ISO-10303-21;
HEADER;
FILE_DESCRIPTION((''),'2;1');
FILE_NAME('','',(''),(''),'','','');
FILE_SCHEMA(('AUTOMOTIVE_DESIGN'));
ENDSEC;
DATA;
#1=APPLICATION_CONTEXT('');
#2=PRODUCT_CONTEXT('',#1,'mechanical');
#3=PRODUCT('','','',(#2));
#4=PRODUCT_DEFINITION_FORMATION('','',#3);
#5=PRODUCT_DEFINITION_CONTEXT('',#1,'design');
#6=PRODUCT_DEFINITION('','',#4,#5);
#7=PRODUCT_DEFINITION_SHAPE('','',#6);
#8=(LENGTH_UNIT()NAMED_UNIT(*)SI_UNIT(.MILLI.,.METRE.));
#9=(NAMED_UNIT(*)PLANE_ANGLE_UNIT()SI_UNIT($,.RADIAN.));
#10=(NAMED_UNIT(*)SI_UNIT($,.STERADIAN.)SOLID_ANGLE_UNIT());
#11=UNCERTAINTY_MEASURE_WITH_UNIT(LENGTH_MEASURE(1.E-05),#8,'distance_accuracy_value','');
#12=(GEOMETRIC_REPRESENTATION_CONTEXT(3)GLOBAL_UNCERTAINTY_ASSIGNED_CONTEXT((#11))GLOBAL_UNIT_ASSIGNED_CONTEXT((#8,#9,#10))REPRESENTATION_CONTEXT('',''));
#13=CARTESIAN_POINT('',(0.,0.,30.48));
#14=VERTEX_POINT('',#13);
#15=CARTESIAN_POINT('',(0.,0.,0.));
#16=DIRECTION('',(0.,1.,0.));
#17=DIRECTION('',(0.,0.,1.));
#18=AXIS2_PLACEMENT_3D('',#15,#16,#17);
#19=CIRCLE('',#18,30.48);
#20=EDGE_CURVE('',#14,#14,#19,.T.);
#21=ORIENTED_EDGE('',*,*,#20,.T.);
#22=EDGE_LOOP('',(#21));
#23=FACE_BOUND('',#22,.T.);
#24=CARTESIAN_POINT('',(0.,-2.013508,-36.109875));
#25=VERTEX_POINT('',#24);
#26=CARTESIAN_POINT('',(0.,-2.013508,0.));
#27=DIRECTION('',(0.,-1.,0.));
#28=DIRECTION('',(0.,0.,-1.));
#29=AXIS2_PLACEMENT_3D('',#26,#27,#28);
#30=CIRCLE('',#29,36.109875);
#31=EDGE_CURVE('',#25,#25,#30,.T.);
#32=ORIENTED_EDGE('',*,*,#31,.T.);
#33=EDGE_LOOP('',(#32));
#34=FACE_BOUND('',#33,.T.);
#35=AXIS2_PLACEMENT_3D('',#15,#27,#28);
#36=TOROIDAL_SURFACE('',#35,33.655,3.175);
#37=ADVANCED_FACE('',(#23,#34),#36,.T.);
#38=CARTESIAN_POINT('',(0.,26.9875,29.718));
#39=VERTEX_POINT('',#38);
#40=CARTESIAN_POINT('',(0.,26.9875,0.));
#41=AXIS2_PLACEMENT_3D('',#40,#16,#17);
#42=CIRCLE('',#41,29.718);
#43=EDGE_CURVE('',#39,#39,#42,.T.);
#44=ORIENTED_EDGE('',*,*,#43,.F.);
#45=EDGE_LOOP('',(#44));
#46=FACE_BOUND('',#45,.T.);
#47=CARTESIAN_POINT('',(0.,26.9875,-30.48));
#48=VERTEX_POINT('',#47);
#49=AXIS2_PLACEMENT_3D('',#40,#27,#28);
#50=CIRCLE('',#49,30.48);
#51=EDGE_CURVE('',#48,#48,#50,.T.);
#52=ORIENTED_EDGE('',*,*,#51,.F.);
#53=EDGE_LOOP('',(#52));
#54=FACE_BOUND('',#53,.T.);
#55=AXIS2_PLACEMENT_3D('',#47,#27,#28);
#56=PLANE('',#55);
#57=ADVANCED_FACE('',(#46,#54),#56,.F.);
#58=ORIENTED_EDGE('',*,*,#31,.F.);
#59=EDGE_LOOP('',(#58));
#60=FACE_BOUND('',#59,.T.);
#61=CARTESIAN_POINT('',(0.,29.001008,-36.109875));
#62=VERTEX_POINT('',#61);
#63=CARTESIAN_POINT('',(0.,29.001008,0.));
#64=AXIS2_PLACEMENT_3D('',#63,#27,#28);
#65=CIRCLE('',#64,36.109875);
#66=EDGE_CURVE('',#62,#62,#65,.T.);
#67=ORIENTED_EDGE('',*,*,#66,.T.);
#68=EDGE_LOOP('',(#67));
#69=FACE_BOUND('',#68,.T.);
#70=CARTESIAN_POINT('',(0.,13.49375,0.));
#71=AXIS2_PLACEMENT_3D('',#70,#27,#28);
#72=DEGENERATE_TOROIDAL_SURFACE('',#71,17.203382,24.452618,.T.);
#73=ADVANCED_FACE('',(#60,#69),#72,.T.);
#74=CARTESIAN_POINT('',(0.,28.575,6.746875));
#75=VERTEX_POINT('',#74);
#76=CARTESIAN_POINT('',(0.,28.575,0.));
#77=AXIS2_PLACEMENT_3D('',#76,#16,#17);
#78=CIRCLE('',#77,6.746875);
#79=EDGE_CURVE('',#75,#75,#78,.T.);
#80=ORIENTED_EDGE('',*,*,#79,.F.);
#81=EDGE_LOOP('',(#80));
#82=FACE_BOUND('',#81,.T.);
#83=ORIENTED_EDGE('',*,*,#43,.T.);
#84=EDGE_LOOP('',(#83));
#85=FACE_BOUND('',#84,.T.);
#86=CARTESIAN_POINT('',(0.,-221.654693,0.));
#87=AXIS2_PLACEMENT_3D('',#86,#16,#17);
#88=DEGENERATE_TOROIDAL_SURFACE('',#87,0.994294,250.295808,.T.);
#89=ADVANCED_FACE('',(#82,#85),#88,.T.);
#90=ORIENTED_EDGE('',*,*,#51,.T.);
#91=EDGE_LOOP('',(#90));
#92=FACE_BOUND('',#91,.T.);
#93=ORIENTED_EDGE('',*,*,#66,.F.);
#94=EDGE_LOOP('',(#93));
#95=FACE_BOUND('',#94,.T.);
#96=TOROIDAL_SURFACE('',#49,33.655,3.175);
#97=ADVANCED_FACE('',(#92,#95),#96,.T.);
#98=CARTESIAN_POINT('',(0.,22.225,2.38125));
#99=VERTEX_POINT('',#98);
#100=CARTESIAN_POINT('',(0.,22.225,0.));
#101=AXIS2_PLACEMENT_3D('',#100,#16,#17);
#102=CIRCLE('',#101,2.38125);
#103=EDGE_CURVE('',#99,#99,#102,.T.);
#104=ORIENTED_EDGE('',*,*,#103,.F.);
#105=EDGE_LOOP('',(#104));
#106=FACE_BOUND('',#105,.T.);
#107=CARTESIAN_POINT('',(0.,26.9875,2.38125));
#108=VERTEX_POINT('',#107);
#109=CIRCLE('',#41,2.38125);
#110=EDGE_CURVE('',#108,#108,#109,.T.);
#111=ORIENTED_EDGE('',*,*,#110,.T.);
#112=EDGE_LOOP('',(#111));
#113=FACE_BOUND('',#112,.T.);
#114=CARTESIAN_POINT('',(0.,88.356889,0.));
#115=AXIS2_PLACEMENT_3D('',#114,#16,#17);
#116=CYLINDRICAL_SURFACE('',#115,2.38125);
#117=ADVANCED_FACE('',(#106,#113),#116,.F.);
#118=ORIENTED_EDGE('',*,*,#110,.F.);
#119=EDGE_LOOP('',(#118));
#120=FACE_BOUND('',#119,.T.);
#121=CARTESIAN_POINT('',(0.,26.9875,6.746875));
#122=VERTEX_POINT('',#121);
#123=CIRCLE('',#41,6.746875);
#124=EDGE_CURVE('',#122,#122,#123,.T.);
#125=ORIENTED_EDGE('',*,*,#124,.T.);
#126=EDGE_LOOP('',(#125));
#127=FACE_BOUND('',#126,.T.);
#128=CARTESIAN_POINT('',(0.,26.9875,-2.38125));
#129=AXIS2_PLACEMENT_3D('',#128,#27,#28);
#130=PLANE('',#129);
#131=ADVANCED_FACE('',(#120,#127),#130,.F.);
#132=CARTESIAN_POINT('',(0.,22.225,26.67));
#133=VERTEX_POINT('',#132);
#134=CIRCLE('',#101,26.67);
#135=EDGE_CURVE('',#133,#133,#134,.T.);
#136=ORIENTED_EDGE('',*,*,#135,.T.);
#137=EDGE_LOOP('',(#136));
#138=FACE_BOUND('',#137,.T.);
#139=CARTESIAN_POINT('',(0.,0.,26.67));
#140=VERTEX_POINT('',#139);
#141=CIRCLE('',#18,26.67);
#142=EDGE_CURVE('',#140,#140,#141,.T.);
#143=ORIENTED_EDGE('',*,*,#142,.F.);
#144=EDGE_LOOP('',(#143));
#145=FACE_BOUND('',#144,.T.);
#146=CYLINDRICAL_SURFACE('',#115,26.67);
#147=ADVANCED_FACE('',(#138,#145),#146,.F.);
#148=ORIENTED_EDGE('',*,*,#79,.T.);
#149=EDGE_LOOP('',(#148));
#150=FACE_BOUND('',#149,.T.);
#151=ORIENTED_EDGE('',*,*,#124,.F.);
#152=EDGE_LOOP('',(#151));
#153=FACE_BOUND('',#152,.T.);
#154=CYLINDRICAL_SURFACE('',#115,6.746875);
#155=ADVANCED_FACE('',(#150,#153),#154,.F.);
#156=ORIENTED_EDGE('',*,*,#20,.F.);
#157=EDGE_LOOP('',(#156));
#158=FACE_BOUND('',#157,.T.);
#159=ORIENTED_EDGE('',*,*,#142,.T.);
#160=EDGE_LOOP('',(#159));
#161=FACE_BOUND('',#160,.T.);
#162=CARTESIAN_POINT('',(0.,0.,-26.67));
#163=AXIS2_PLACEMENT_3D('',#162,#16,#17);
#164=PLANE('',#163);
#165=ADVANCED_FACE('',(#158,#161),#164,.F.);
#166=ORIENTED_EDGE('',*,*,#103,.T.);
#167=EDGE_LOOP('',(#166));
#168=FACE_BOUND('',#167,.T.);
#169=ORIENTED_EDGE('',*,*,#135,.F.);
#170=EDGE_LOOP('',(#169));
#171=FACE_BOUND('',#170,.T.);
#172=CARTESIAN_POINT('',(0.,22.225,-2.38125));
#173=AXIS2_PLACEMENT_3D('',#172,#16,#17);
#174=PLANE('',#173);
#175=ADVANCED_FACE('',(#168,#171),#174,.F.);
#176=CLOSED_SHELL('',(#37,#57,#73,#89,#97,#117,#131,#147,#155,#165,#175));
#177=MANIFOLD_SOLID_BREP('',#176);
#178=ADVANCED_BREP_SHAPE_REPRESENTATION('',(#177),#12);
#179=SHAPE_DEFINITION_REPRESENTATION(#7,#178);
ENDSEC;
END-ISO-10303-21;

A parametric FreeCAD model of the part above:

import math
import FreeCAD as App
import Part
import Sketcher
from FreeCAD import Vector
Q = App.Units.Quantity

doc = App.newDocument("Part")
body = doc.addObject("PartDesign::Body", "Body")

# Sketch on YZ plane
sketch1 = doc.addObject("Sketcher::SketchObject", "Sketch")
body.addObject(sketch1)
sketch1.AttachmentSupport = (doc.YZ_Plane, [""])
sketch1.MapMode = "FlatFace"
sketch1.addGeometry(Part.LineSegment(Vector(27, -2.4, 0), Vector(22.2, -2.4, 0)), False)
sketch1.addGeometry(Part.LineSegment(Vector(22.2, -2.4, 0), Vector(22.2, -26.7, 0)), False)
sketch1.addGeometry(Part.LineSegment(Vector(22.2, -26.7, 0), Vector(0, -26.7, 0)), False)
sketch1.addGeometry(Part.LineSegment(Vector(0, -26.7, 0), Vector(0, -30.5, 0)), False)
sketch1.addGeometry(Part.LineSegment(Vector(0, -30.5, 0), Vector(27, -30.5, 0)), False)
sketch1.addGeometry(Part.LineSegment(Vector(27, -30.5, 0), Vector(27, -29.7, 0)), False)
sketch1.addGeometry(Part.ArcOfCircle(Part.Circle(Vector(-221.7, -1, 0), Vector(0, 0, 1), 250.3), math.radians(-6.59), math.radians(-1.32)), False)
sketch1.addGeometry(Part.LineSegment(Vector(28.6, -6.7, 0), Vector(27, -6.7, 0)), False)
sketch1.addGeometry(Part.LineSegment(Vector(27, -6.7, 0), Vector(27, -2.4, 0)), False)
sketch1.addConstraint(Sketcher.Constraint("Coincident", 0, 2, 1, 1))
sketch1.addConstraint(Sketcher.Constraint("Coincident", 1, 2, 2, 1))
sketch1.addConstraint(Sketcher.Constraint("Coincident", 2, 2, 3, 1))
sketch1.addConstraint(Sketcher.Constraint("Coincident", 3, 2, 4, 1))
sketch1.addConstraint(Sketcher.Constraint("Coincident", 4, 2, 5, 1))
sketch1.addConstraint(Sketcher.Constraint("Coincident", 5, 2, 6, 1))
sketch1.addConstraint(Sketcher.Constraint("Coincident", 6, 2, 7, 1))
sketch1.addConstraint(Sketcher.Constraint("Coincident", 7, 2, 8, 1))
sketch1.addConstraint(Sketcher.Constraint("Coincident", 8, 2, 0, 1))
sketch1.addConstraint(Sketcher.Constraint("Horizontal", 0))
sketch1.addConstraint(Sketcher.Constraint("Vertical", 1))
sketch1.addConstraint(Sketcher.Constraint("Horizontal", 2))
sketch1.addConstraint(Sketcher.Constraint("Vertical", 3))
sketch1.addConstraint(Sketcher.Constraint("Horizontal", 4))
sketch1.addConstraint(Sketcher.Constraint("Vertical", 5))
sketch1.addConstraint(Sketcher.Constraint("Horizontal", 7))
sketch1.addConstraint(Sketcher.Constraint("Vertical", 8))
sketch1.addConstraint(Sketcher.Constraint("PointOnObject", 2, 2, -2))
sketch1.addConstraint(Sketcher.Constraint("Vertical", 5, 2, 7, 2))
sketch1.addConstraint(Sketcher.Constraint("DistanceY", 3, 2, 3, 1, Q("0.15 in")))
sketch1.addConstraint(Sketcher.Constraint("DistanceY", 5, 1, 5, 2, Q("0.03 in")))
sketch1.addConstraint(Sketcher.Constraint("DistanceY", 3, 2, -1, 1, Q("1.2 in")))
sketch1.addConstraint(Sketcher.Constraint("DistanceX", 0, 2, 0, 1, Q("0.1875 in")))
sketch1.addConstraint(Sketcher.Constraint("DistanceX", 2, 2, 2, 1, Q("0.875 in")))
sketch1.addConstraint(Sketcher.Constraint("DistanceX", 7, 2, 7, 1, Q("0.0625 in")))
sketch1.addConstraint(Sketcher.Constraint("DistanceY", 8, 1, 8, 2, Q("0.171875 in")))
sketch1.addConstraint(Sketcher.Constraint("DistanceY", 0, 2, -1, 1, Q("0.09375 in")))
sketch1.addConstraint(Sketcher.Constraint("Radius", 6, 250.295807))
revolution = doc.addObject("PartDesign::Revolution", "Revolution")
body.addObject(revolution)
revolution.Profile = sketch1
revolution.ReferenceAxis = (sketch1, ["H_Axis"])
revolution.Angle = 360

# Sketch on XY plane
sketch2 = doc.addObject("Sketcher::SketchObject", "Sketch001")
body.addObject(sketch2)
sketch2.AttachmentSupport = (doc.XY_Plane, [""])
sketch2.MapMode = "FlatFace"
sketch2.addGeometry(Part.LineSegment(Vector(-30.5, 0, 0), Vector(-30.5, 27, 0)), False)
sketch2.addGeometry(Part.ArcOfCircle(Part.Circle(Vector(-33.7, 27, 0), Vector(0, 0, 1), 3.2), math.radians(0), math.radians(141)), False)
sketch2.addGeometry(Part.ArcOfCircle(Part.Circle(Vector(-17.2, 13.5, 0), Vector(0, 0, 1), 24.5), math.radians(141), math.radians(219)), False)
sketch2.addGeometry(Part.ArcOfCircle(Part.Circle(Vector(-33.7, 0, 0), Vector(0, 0, 1), 3.2), math.radians(-141), math.radians(0)), False)
sketch2.addConstraint(Sketcher.Constraint("Tangent", 0, 2, 1, 1))
sketch2.addConstraint(Sketcher.Constraint("Tangent", 1, 2, 2, 1))
sketch2.addConstraint(Sketcher.Constraint("Tangent", 2, 2, 3, 1))
sketch2.addConstraint(Sketcher.Constraint("Tangent", 3, 2, 0, 1))
sketch2.addConstraint(Sketcher.Constraint("Vertical", 0))
sketch2.addConstraint(Sketcher.Constraint("Equal", 1, 3))
sketch2.addConstraint(Sketcher.Constraint("PointOnObject", 3, 3, -1))
sketch2.addConstraint(Sketcher.Constraint("Radius", 1, Q("0.125 in")))
sketch2.addConstraint(Sketcher.Constraint("DistanceX", 0, 2, -1, 1, Q("1.2 in")))
sketch2.addConstraint(Sketcher.Constraint("DistanceY", 0, 1, 0, 2, Q("1.0625 in")))
sketch2.addConstraint(Sketcher.Constraint("Radius", 2, 24.452618))
revolution2 = doc.addObject("PartDesign::Revolution", "Revolution001")
body.addObject(revolution2)
revolution2.Profile = sketch2
revolution2.ReferenceAxis = (sketch2, ["V_Axis"])
revolution2.Angle = 360

doc.recompute()
